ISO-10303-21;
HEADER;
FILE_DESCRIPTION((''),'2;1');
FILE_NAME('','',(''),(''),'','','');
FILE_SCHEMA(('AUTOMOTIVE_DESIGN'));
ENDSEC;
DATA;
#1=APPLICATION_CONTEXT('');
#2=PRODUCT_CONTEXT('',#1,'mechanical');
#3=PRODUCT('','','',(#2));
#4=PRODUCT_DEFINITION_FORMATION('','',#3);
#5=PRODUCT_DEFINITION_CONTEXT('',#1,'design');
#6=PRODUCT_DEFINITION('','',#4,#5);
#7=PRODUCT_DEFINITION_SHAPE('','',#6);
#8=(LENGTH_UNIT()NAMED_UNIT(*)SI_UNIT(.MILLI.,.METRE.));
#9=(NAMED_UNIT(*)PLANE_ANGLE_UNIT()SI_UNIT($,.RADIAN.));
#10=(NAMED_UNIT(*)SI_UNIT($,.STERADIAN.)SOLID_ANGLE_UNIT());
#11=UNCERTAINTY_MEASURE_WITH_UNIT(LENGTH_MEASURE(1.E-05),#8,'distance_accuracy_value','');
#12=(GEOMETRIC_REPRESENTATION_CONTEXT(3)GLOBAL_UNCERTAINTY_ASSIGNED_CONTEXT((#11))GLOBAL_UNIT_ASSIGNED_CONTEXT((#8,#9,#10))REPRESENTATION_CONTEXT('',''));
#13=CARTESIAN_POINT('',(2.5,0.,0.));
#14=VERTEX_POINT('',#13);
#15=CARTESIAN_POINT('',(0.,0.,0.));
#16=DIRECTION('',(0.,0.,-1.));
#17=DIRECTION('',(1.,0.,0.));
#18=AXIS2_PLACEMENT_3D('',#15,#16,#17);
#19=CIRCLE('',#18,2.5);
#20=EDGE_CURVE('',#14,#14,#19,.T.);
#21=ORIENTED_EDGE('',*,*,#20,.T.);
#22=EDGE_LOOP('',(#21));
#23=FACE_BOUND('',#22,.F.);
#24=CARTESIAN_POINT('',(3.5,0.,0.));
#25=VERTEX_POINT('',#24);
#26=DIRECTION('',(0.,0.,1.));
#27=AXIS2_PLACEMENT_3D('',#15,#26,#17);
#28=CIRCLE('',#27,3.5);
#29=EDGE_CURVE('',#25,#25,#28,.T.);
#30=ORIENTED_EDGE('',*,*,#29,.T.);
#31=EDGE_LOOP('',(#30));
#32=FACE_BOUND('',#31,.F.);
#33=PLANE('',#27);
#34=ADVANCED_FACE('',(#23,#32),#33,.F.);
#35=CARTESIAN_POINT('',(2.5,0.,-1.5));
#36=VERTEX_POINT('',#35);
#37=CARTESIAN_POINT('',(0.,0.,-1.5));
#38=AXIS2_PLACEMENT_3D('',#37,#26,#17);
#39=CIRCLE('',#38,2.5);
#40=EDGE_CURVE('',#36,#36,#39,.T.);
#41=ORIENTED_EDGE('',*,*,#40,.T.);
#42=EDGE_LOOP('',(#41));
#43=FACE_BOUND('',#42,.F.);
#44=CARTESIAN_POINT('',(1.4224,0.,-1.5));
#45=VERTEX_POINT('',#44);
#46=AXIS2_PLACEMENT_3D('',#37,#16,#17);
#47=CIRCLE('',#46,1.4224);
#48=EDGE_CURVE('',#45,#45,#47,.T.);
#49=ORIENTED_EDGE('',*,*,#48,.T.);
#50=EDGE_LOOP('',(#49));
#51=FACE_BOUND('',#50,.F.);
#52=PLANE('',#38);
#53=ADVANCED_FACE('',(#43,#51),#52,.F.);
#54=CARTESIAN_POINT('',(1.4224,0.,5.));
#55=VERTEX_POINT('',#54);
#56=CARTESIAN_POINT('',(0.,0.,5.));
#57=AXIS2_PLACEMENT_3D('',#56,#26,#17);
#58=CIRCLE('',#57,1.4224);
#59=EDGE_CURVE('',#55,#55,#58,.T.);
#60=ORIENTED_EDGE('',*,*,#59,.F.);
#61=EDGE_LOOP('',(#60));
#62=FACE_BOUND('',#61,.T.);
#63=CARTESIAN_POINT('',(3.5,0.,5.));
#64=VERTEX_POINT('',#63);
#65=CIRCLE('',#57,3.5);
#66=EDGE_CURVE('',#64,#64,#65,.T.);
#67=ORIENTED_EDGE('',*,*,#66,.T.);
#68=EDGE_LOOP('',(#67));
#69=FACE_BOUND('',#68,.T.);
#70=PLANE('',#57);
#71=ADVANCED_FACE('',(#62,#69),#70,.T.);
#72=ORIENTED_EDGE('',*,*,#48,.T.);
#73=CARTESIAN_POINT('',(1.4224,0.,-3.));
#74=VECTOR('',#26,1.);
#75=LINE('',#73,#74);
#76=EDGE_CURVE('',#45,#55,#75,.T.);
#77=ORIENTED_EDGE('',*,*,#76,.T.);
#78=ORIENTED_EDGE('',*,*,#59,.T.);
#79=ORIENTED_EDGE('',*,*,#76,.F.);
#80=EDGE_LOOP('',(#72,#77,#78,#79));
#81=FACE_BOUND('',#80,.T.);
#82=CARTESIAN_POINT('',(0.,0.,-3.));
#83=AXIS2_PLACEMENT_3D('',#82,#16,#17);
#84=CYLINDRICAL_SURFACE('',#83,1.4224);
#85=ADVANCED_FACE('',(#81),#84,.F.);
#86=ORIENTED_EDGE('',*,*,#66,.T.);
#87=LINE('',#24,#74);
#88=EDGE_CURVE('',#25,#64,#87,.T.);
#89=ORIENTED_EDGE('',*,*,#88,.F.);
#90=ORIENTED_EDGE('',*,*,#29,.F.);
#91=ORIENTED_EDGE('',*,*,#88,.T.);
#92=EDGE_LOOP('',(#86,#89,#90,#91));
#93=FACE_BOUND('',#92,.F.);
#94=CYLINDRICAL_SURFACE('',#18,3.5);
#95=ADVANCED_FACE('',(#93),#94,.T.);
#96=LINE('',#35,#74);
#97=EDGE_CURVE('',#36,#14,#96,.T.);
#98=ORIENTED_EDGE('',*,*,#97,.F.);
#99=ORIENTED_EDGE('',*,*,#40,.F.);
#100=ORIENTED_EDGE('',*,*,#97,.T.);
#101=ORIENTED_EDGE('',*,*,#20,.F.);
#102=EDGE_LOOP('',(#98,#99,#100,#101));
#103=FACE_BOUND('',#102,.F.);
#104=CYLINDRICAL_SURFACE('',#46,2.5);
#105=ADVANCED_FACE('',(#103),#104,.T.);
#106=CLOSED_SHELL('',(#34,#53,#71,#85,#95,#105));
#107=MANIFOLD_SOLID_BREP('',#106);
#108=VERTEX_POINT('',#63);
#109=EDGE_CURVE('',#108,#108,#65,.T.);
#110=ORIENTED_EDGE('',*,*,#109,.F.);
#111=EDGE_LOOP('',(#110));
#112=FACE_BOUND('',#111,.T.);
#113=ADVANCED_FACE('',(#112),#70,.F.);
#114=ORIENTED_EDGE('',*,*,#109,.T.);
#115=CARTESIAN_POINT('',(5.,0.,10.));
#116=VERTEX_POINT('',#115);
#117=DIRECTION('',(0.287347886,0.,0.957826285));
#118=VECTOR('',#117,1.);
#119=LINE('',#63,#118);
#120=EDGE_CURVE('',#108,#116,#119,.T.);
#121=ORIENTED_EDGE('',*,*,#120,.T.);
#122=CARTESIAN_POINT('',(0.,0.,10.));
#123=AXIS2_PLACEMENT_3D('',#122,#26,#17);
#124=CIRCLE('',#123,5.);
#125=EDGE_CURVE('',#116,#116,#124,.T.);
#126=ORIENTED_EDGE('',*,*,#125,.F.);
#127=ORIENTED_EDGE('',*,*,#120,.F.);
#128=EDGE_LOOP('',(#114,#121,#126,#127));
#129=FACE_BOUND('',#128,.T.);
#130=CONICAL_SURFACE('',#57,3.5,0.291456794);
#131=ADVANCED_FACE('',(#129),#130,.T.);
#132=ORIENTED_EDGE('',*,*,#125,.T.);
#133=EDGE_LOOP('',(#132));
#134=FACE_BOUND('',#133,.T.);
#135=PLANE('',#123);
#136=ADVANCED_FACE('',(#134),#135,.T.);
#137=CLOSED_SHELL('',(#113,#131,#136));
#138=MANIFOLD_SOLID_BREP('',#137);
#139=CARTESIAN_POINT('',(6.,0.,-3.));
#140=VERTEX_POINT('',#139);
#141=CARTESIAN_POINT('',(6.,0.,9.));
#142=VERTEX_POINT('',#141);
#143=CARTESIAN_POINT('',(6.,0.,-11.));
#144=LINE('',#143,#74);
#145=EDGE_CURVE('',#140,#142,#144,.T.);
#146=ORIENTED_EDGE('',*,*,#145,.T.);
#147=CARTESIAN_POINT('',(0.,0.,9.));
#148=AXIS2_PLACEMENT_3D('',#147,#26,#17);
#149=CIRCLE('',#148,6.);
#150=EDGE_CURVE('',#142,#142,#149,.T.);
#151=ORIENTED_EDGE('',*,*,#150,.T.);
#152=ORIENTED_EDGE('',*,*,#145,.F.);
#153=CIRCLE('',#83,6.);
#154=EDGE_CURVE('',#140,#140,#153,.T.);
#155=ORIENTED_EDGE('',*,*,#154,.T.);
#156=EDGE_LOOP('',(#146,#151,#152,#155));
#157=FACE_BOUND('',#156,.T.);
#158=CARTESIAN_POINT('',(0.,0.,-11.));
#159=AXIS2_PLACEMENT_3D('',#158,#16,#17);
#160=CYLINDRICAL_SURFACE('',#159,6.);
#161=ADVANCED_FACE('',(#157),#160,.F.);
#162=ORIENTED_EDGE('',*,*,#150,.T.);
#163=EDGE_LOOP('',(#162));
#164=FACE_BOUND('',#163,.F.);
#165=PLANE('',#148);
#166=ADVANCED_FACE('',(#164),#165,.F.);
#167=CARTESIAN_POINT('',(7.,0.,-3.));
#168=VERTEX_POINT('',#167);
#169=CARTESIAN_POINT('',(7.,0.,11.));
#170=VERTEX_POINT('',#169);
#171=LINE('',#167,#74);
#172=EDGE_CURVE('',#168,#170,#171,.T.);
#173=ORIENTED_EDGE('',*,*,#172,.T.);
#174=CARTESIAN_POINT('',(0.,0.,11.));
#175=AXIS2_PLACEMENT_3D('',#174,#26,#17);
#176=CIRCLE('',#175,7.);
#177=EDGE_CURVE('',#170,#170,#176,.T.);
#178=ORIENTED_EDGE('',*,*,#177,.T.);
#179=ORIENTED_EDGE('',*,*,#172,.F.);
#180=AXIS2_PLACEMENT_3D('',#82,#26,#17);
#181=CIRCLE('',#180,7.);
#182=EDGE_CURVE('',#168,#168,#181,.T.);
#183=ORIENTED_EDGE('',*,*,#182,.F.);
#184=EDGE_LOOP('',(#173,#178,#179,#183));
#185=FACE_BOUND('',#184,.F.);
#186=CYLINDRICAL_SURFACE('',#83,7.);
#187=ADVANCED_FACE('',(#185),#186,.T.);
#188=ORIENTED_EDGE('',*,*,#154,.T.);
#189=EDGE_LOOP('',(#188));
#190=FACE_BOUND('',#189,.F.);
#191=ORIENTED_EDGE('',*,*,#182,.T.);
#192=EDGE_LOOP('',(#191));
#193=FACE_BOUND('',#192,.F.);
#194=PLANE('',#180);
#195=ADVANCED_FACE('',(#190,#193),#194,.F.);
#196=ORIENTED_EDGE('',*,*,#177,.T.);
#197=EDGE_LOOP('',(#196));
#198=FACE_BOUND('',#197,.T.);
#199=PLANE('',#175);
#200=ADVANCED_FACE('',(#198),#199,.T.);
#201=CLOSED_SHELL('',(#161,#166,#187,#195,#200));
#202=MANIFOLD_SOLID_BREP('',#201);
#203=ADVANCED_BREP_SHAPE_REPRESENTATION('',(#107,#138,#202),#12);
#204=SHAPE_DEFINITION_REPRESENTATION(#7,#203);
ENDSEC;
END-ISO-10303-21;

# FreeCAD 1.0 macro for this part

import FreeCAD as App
import Part
import Sketcher
from FreeCAD import Vector


def add_polygon(sketch, points):
    """Adds a closed chain of lines whose ends are joined by coincident constraints."""
    first, n = sketch.GeometryCount, len(points)
    for a, b in zip(points, points[1:] + points[:1]):
        sketch.addGeometry(Part.LineSegment(App.Vector(*a, 0), App.Vector(*b, 0)), False)
    for i in range(n):
        sketch.addConstraint(Sketcher.Constraint("Coincident", first + i, 2, first + (i + 1) % n, 1))

doc = App.newDocument("Part")
body = doc.addObject("PartDesign::Body", "Body")

# Sketch on XZ plane
sketch1 = body.newObject("Sketcher::SketchObject", "Sketch")
sketch1.AttachmentSupport = (doc.getObject("XZ_Plane"), [""])
sketch1.MapMode = "FlatFace"
add_polygon(sketch1, [(0, 5), (3.5, 5), (5, 10), (0, 10)])  # lines 0-3
sketch1.addConstraint(Sketcher.Constraint("Horizontal", 0))
sketch1.addConstraint(Sketcher.Constraint("Horizontal", 2))
sketch1.addConstraint(Sketcher.Constraint("Vertical", 3))
sketch1.addConstraint(Sketcher.Constraint("PointOnObject", 2, 2, -2))
sketch1.addConstraint(Sketcher.Constraint("Equal", 2, 3))
sketch1.addConstraint(Sketcher.Constraint("DistanceX", 2, 2, 2, 1, 5.0))
sketch1.addConstraint(Sketcher.Constraint("DistanceX", 0, 1, 0, 2, 3.5))
sketch1.addConstraint(Sketcher.Constraint("DistanceY", -1, 1, 0, 2, 5.0))
revolution = body.newObject("PartDesign::Revolution", "Revolution")
revolution.Profile = sketch1
revolution.ReferenceAxis = (sketch1, ["V_Axis"])
revolution.Angle = 360
body2 = doc.addObject("PartDesign::Body", "Body001")

# Sketch on XY plane
sketch2 = body2.newObject("Sketcher::SketchObject", "Sketch001")
sketch2.AttachmentSupport = (doc.getObject("XY_Plane001"), [""])
sketch2.MapMode = "FlatFace"
sketch2.AttachmentOffset = App.Placement(Vector(0, 0, -3), App.Rotation())
sketch2.addGeometry(Part.Circle(Vector(0, 0, 0), Vector(0, 0, 1), 1.4), False)
sketch2.addConstraint(Sketcher.Constraint("Coincident", 0, 3, -1, 1))
sketch2.addConstraint(Sketcher.Constraint("Diameter", 0, 2.8448))
pad1 = body2.newObject("PartDesign::Pad", "Pad")
pad1.Profile = sketch2
pad1.Length = 8
body3 = doc.addObject("PartDesign::Body", "Body002")

# Sketch on XY plane
sketch3 = body3.newObject("Sketcher::SketchObject", "Sketch002")
sketch3.AttachmentSupport = (doc.getObject("XY_Plane002"), [""])
sketch3.MapMode = "FlatFace"
sketch3.addGeometry(Part.Circle(Vector(0, 0, 0), Vector(0, 0, 1), 3.5), False)
sketch3.addConstraint(Sketcher.Constraint("Coincident", 0, 3, -1, 1))
sketch3.addConstraint(Sketcher.Constraint("Diameter", 0, 7.0))
pad2 = body3.newObject("PartDesign::Pad", "Pad001")
pad2.Profile = sketch3
pad2.Length = 5
body4 = doc.addObject("PartDesign::Body", "Body003")

# Sketch on XY plane
sketch4 = body4.newObject("Sketcher::SketchObject", "Sketch003")
sketch4.AttachmentSupport = (doc.getObject("XY_Plane003"), [""])
sketch4.MapMode = "FlatFace"
sketch4.AttachmentOffset = App.Placement(Vector(0, 0, -1.5), App.Rotation())
sketch4.addGeometry(Part.Circle(Vector(0, 0, 0), Vector(0, 0, 1), 2.5), False)
sketch4.addConstraint(Sketcher.Constraint("Coincident", 0, 3, -1, 1))
sketch4.addConstraint(Sketcher.Constraint("Diameter", 0, 5.0))
pad3 = body4.newObject("PartDesign::Pad", "Pad002")
pad3.Profile = sketch4
pad3.Length = 5
doc.recompute()

boolean = body4.newObject("PartDesign::Boolean", "Boolean")
boolean.Type = "Fuse"
boolean.addObjects([body3])
doc.recompute()

boolean2 = body4.newObject("PartDesign::Boolean", "Boolean001")
boolean2.Type = "Cut"
boolean2.addObjects([body2])
body5 = doc.addObject("PartDesign::Body", "Body004")

# Sketch on XY plane
sketch5 = body5.newObject("Sketcher::SketchObject", "Sketch004")
sketch5.AttachmentSupport = (doc.getObject("XY_Plane004"), [""])
sketch5.MapMode = "FlatFace"
sketch5.AttachmentOffset = App.Placement(Vector(0, 0, -11), App.Rotation())
sketch5.addGeometry(Part.Circle(Vector(0, 0, 0), Vector(0, 0, 1), 6), False)
sketch5.addConstraint(Sketcher.Constraint("Coincident", 0, 3, -1, 1))
sketch5.addConstraint(Sketcher.Constraint("Diameter", 0, 12.0))
pad4 = body5.newObject("PartDesign::Pad", "Pad003")
pad4.Profile = sketch5
pad4.Length = 20
body6 = doc.addObject("PartDesign::Body", "Body005")

# Sketch on XY plane
sketch6 = body6.newObject("Sketcher::SketchObject", "Sketch005")
sketch6.AttachmentSupport = (doc.getObject("XY_Plane005"), [""])
sketch6.MapMode = "FlatFace"
sketch6.AttachmentOffset = App.Placement(Vector(0, 0, -3), App.Rotation())
sketch6.addGeometry(Part.Circle(Vector(0, 0, 0), Vector(0, 0, 1), 7), False)
sketch6.addConstraint(Sketcher.Constraint("Coincident", 0, 3, -1, 1))
sketch6.addConstraint(Sketcher.Constraint("Diameter", 0, 14.0))
pad5 = body6.newObject("PartDesign::Pad", "Pad004")
pad5.Profile = sketch6
pad5.Length = 14
doc.recompute()

boolean3 = body6.newObject("PartDesign::Boolean", "Boolean002")
boolean3.Type = "Cut"
boolean3.addObjects([body5])

doc.recompute()
